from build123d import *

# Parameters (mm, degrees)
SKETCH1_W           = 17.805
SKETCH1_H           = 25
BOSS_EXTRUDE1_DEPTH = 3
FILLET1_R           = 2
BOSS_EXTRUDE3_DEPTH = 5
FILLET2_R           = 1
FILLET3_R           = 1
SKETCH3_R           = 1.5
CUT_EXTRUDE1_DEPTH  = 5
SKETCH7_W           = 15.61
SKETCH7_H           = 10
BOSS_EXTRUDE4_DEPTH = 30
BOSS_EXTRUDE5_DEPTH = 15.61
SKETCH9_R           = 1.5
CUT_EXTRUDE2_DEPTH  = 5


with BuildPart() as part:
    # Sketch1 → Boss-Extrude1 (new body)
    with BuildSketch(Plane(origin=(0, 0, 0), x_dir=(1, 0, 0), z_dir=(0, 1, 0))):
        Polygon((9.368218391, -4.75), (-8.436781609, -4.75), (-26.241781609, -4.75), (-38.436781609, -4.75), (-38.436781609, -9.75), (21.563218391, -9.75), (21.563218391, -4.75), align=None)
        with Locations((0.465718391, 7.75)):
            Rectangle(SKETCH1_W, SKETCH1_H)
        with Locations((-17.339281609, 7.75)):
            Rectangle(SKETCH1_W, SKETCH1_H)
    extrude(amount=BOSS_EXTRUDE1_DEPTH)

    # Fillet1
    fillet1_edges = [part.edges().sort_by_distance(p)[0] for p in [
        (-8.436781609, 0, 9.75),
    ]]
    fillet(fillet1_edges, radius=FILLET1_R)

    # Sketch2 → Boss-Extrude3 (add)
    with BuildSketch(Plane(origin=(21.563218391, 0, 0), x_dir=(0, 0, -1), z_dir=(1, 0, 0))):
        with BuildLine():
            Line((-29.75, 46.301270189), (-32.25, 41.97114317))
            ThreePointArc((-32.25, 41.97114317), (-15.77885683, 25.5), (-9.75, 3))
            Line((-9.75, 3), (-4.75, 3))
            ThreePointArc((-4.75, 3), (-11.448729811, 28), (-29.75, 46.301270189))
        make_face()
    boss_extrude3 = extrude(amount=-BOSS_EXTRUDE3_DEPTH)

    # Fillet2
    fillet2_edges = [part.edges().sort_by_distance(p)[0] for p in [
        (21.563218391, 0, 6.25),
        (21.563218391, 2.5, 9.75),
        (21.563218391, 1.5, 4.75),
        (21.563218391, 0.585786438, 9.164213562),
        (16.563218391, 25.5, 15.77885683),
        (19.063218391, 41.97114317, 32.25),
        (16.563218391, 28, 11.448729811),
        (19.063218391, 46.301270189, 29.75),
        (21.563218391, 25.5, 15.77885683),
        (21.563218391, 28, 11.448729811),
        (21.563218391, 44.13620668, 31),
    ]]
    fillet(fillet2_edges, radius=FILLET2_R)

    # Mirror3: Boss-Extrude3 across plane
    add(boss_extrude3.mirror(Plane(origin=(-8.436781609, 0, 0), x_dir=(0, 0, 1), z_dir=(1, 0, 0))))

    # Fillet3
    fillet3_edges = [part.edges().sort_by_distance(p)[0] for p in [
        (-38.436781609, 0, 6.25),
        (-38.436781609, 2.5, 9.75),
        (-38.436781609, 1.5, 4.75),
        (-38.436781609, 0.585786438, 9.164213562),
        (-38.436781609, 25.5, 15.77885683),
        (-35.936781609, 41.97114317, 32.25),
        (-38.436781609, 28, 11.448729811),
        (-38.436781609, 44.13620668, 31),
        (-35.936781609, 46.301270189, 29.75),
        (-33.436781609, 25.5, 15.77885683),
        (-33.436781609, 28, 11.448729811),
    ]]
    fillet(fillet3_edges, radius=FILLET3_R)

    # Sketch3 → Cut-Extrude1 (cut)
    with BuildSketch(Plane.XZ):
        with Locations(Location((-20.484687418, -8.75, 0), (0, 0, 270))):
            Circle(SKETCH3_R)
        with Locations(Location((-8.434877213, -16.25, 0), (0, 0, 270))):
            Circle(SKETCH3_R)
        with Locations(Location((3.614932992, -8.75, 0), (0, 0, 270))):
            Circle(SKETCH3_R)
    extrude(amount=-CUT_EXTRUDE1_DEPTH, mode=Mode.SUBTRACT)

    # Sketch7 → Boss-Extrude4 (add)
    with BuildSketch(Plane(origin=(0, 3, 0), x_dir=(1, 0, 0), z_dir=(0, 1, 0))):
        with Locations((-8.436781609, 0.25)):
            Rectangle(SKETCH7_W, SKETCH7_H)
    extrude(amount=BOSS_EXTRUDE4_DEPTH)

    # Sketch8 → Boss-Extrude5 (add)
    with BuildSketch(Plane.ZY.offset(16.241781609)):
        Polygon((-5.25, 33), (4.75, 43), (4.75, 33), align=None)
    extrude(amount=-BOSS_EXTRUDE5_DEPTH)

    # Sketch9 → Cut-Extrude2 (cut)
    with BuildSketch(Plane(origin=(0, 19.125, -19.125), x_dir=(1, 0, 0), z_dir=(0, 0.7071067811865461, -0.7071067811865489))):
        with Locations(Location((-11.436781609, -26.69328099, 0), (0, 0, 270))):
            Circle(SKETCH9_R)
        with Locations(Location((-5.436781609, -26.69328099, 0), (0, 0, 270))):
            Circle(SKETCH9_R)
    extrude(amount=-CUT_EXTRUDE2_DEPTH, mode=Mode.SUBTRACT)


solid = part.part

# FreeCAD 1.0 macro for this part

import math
import FreeCAD as App
import Part
import Sketcher
from FreeCAD import Vector
Q = App.Units.Quantity


def edges_at(feature, points):
    """Names of the edges that pass closest to the given points."""
    edges = feature.Shape.Edges
    near = lambda p: min(range(len(edges)), key=lambda i: edges[i].distToShape(Part.Vertex(*p))[0])
    return sorted({f"Edge{near(p) + 1}" for p in points})

doc = App.newDocument("Part")
params = doc.addObject("Spreadsheet::Sheet", "Params")
for row, (alias, value) in enumerate([
    ("sketch1_width", "60 mm"),
    ("sketch1_height", "5 mm"),
    ("sketch1_height2", "25 mm"),
    ("sketch1_width2", "35.61 mm"),
    ("pad1_length", "3 mm"),
    ("fillet_radius", "2 mm"),
    ("sketch2_radius", "45 mm"),
    ("sketch2_radius2", "50 mm"),
    ("pad2_length", "5 mm"),
    ("fillet2_radius", "1 mm"),
    ("fillet3_radius", "1 mm"),
    ("sketch3_diameter", "3 mm"),
    ("pocket1_length", "5 mm"),
    ("sketch4_height", "10 mm"),
    ("sketch4_width", "15.61 mm"),
    ("pad3_length", "30 mm"),
    ("sketch5_width", "10 mm"),
    ("pad4_length", "15.61 mm"),
    ("sketch6_diameter", "3 mm"),
    ("pocket2_length", "5 mm"),
], start=1):
    params.set(f"A{row}", alias)
    params.set(f"B{row}", "=" + value)
    params.setAlias(f"B{row}", alias)

body = doc.addObject("PartDesign::Body", "Body")

# Sketch on XZ plane
sketch1 = doc.addObject("Sketcher::SketchObject", "Sketch")
body.addObject(sketch1)
sketch1.AttachmentSupport = (doc.XZ_Plane, [""])
sketch1.MapMode = "FlatFace"
sketch1.addGeometry(Part.LineSegment(Vector(-38, 5, 0), Vector(-38, 10, 0)), False)
sketch1.addGeometry(Part.LineSegment(Vector(-38, 10, 0), Vector(22, 10, 0)), False)
sketch1.addGeometry(Part.LineSegment(Vector(22, 10, 0), Vector(22, 5, 0)), False)
sketch1.addGeometry(Part.LineSegment(Vector(22, 5, 0), Vector(9, 5, 0)), False)
sketch1.addGeometry(Part.LineSegment(Vector(9, 5, 0), Vector(9, -20, 0)), False)
sketch1.addGeometry(Part.LineSegment(Vector(9, -20, 0), Vector(-26, -20, 0)), False)
sketch1.addGeometry(Part.LineSegment(Vector(-26, -20, 0), Vector(-26, 5, 0)), False)
sketch1.addGeometry(Part.LineSegment(Vector(-26, 5, 0), Vector(-38, 5, 0)), False)
sketch1.addConstraint(Sketcher.Constraint("Coincident", 0, 2, 1, 1))
sketch1.addConstraint(Sketcher.Constraint("Coincident", 1, 2, 2, 1))
sketch1.addConstraint(Sketcher.Constraint("Coincident", 2, 2, 3, 1))
sketch1.addConstraint(Sketcher.Constraint("Coincident", 3, 2, 4, 1))
sketch1.addConstraint(Sketcher.Constraint("Coincident", 4, 2, 5, 1))
sketch1.addConstraint(Sketcher.Constraint("Coincident", 5, 2, 6, 1))
sketch1.addConstraint(Sketcher.Constraint("Coincident", 6, 2, 7, 1))
sketch1.addConstraint(Sketcher.Constraint("Coincident", 7, 2, 0, 1))
sketch1.addConstraint(Sketcher.Constraint("Vertical", 0))
sketch1.addConstraint(Sketcher.Constraint("Horizontal", 1))
sketch1.addConstraint(Sketcher.Constraint("Vertical", 2))
sketch1.addConstraint(Sketcher.Constraint("Horizontal", 3))
sketch1.addConstraint(Sketcher.Constraint("Vertical", 4))
sketch1.addConstraint(Sketcher.Constraint("Horizontal", 5))
sketch1.addConstraint(Sketcher.Constraint("Vertical", 6))
sketch1.addConstraint(Sketcher.Constraint("Horizontal", 7))
sketch1.addConstraint(Sketcher.Constraint("Horizontal", 3, 2, 6, 2))
sketch1.addConstraint(Sketcher.Constraint("Equal", 3, 7))
sketch1.addConstraint(Sketcher.Constraint("DistanceX", 1, 1, 1, 2, Q("60 mm")))
sketch1.addConstraint(Sketcher.Constraint("DistanceY", 0, 1, 0, 2, Q("5 mm")))
sketch1.addConstraint(Sketcher.Constraint("DistanceY", 4, 2, 4, 1, Q("25 mm")))
sketch1.addConstraint(Sketcher.Constraint("DistanceX", 5, 2, 5, 1, Q("35.61 mm")))
sketch1.addConstraint(Sketcher.Constraint("DistanceY", -1, 1, 0, 2, Q("9.75 mm")))
sketch1.addConstraint(Sketcher.Constraint("DistanceX", 0, 2, -1, 1, Q("38.436782 mm")))
sketch1.setExpression("Constraints[18]", "Params.sketch1_width")
sketch1.setExpression("Constraints[19]", "Params.sketch1_height")
sketch1.setExpression("Constraints[20]", "Params.sketch1_height2")
sketch1.setExpression("Constraints[21]", "Params.sketch1_width2")
pad1 = doc.addObject("PartDesign::Pad", "Pad")
body.addObject(pad1)
pad1.Profile = sketch1
pad1.setExpression("Length", "Params.pad1_length")
pad1.Reversed = True
doc.recompute()

fillet = doc.addObject("PartDesign::Fillet", "Fillet")
body.addObject(fillet)
fillet.Base = (pad1, edges_at(pad1, [(-8.437, 0, 9.75)]))
fillet.setExpression("Radius", "Params.fillet_radius")

# Sketch on YZ plane
sketch2 = doc.addObject("Sketcher::SketchObject", "Sketch001")
body.addObject(sketch2)
sketch2.AttachmentSupport = (doc.YZ_Plane, [""])
sketch2.MapMode = "FlatFace"
sketch2.AttachmentOffset = App.Placement(Vector(0, 0, 21.563218), App.Rotation())
sketch2.addGeometry(Part.LineSegment(Vector(46, 30, 0), Vector(42, 32, 0)), False)
sketch2.addGeometry(Part.ArcOfCircle(Part.Circle(Vector(3, 55, 0), Vector(0, 0, 1), 45), math.radians(-90), math.radians(-30)), False)
sketch2.addGeometry(Part.LineSegment(Vector(3, 10, 0), Vector(3, 5, 0)), False)
sketch2.addGeometry(Part.ArcOfCircle(Part.Circle(Vector(3, 55, 0), Vector(0, 0, 1), 50), math.radians(-90), math.radians(-30)), False)
sketch2.addConstraint(Sketcher.Constraint("Coincident", 0, 2, 1, 2))
sketch2.addConstraint(Sketcher.Constraint("Coincident", 1, 1, 2, 1))
sketch2.addConstraint(Sketcher.Constraint("Coincident", 2, 2, 3, 1))
sketch2.addConstraint(Sketcher.Constraint("Coincident", 3, 2, 0, 1))
sketch2.addConstraint(Sketcher.Constraint("Vertical", 2))
sketch2.addConstraint(Sketcher.Constraint("Coincident", 3, 3, 1, 3))
sketch2.addConstraint(Sketcher.Constraint("Vertical", 3, 3, 1, 1))
sketch2.addConstraint(Sketcher.Constraint("Radius", 1, Q("45 mm")))
sketch2.addConstraint(Sketcher.Constraint("Radius", 3, Q("50 mm")))
sketch2.addConstraint(Sketcher.Constraint("Angle", 0, Q("150 deg")))
sketch2.addConstraint(Sketcher.Constraint("DistanceX", -1, 1, 1, 3, Q("3 mm")))
sketch2.addConstraint(Sketcher.Constraint("DistanceY", 1, 1, 3, 2, Q("20 mm")))
sketch2.addConstraint(Sketcher.Constraint("DistanceY", -1, 1, 1, 3, Q("54.75 mm")))
sketch2.setExpression("Constraints[7]", "Params.sketch2_radius")
sketch2.setExpression("Constraints[8]", "Params.sketch2_radius2")
pad2 = doc.addObject("PartDesign::Pad", "Pad001")
body.addObject(pad2)
pad2.Profile = sketch2
pad2.setExpression("Length", "Params.pad2_length")
pad2.Reversed = True
doc.recompute()

fillet2 = doc.addObject("PartDesign::Fillet", "Fillet001")
body.addObject(fillet2)
fillet2.Base = (pad2, edges_at(pad2, [
    (21.563, 0, 6.25),
    (21.563, 2.5, 9.75),
    (21.563, 1.5, 4.75),
    (21.563, 0.586, 9.164),
    (16.563, 25.5, 15.779),
    (19.063, 41.971, 32.25),
    (16.563, 28, 11.449),
    (19.063, 46.301, 29.75),
    (21.563, 25.5, 15.779),
    (21.563, 28, 11.449),
    (21.563, 44.136, 31),
]))
fillet2.setExpression("Radius", "Params.fillet2_radius")
doc.recompute()

datumplane = doc.addObject("PartDesign::Plane", "DatumPlane")
body.addObject(datumplane)
datumplane.AttachmentSupport = (doc.YZ_Plane, [""])
datumplane.MapMode = "FlatFace"
datumplane.AttachmentOffset = App.Placement(Vector(0, 0, -8.436782), App.Rotation())
mirrored = doc.addObject("PartDesign::Mirrored", "Mirrored")
body.addObject(mirrored)
mirrored.Originals = [pad2]
mirrored.MirrorPlane = (datumplane, [""])
body.Tip = mirrored
doc.recompute()

fillet3 = doc.addObject("PartDesign::Fillet", "Fillet002")
body.addObject(fillet3)
fillet3.Base = (mirrored, edges_at(mirrored, [
    (-38.437, 0, 6.25),
    (-38.437, 2.5, 9.75),
    (-38.437, 1.5, 4.75),
    (-38.437, 0.586, 9.164),
    (-38.437, 25.5, 15.779),
    (-35.937, 41.971, 32.25),
    (-38.437, 28, 11.449),
    (-38.437, 44.136, 31),
    (-35.937, 46.301, 29.75),
    (-33.437, 25.5, 15.779),
    (-33.437, 28, 11.449),
]))
fillet3.setExpression("Radius", "Params.fillet3_radius")

# Sketch on XZ plane
sketch3 = doc.addObject("Sketcher::SketchObject", "Sketch002")
body.addObject(sketch3)
sketch3.AttachmentSupport = (doc.XZ_Plane, [""])
sketch3.MapMode = "FlatFace"
sketch3.addGeometry(Part.Circle(Vector(-20.5, -8.8, 0), Vector(0, 0, 1), 1.5), False)
sketch3.addGeometry(Part.Circle(Vector(-8.4, -16.2, 0), Vector(0, 0, 1), 1.5), False)
sketch3.addGeometry(Part.Circle(Vector(3.6, -8.8, 0), Vector(0, 0, 1), 1.5), False)
sketch3.addConstraint(Sketcher.Constraint("Equal", 0, 1))
sketch3.addConstraint(Sketcher.Constraint("Equal", 1, 2))
sketch3.addConstraint(Sketcher.Constraint("Horizontal", 0, 3, 2, 3))
sketch3.addConstraint(Sketcher.Constraint("Diameter", 0, Q("3 mm")))
sketch3.addConstraint(Sketcher.Constraint("DistanceY", 1, 3, 0, 3, Q("7.5 mm")))
sketch3.addConstraint(Sketcher.Constraint("DistanceY", 0, 3, -1, 1, Q("8.75 mm")))
sketch3.addConstraint(Sketcher.Constraint("DistanceX", 0, 3, 1, 3, Q("12.04981 mm")))
sketch3.addConstraint(Sketcher.Constraint("DistanceX", 1, 3, 2, 3, Q("12.04981 mm")))
sketch3.addConstraint(Sketcher.Constraint("DistanceX", 0, 3, -1, 1, Q("20.484687 mm")))
sketch3.setExpression("Constraints[3]", "Params.sketch3_diameter")
pocket1 = doc.addObject("PartDesign::Pocket", "Pocket")
body.addObject(pocket1)
pocket1.Profile = sketch3
pocket1.setExpression("Length", "Params.pocket1_length")

# Sketch on XZ plane
sketch4 = doc.addObject("Sketcher::SketchObject", "Sketch003")
body.addObject(sketch4)
sketch4.AttachmentSupport = (doc.XZ_Plane, [""])
sketch4.MapMode = "FlatFace"
sketch4.AttachmentOffset = App.Placement(Vector(0, 0, -3), App.Rotation())
sketch4.addGeometry(Part.LineSegment(Vector(-16, -5, 0), Vector(-16, 5, 0)), False)
sketch4.addGeometry(Part.LineSegment(Vector(-16, 5, 0), Vector(-1, 5, 0)), False)
sketch4.addGeometry(Part.LineSegment(Vector(-1, 5, 0), Vector(-1, -5, 0)), False)
sketch4.addGeometry(Part.LineSegment(Vector(-1, -5, 0), Vector(-16, -5, 0)), False)
sketch4.addConstraint(Sketcher.Constraint("Coincident", 0, 2, 1, 1))
sketch4.addConstraint(Sketcher.Constraint("Coincident", 1, 2, 2, 1))
sketch4.addConstraint(Sketcher.Constraint("Coincident", 2, 2, 3, 1))
sketch4.addConstraint(Sketcher.Constraint("Coincident", 3, 2, 0, 1))
sketch4.addConstraint(Sketcher.Constraint("Vertical", 0))
sketch4.addConstraint(Sketcher.Constraint("Horizontal", 1))
sketch4.addConstraint(Sketcher.Constraint("Vertical", 2))
sketch4.addConstraint(Sketcher.Constraint("Horizontal", 3))
sketch4.addConstraint(Sketcher.Constraint("DistanceY", 0, 1, 0, 2, Q("10 mm")))
sketch4.addConstraint(Sketcher.Constraint("DistanceX", 1, 1, 1, 2, Q("15.61 mm")))
sketch4.addConstraint(Sketcher.Constraint("DistanceY", -1, 1, 0, 2, Q("4.75 mm")))
sketch4.addConstraint(Sketcher.Constraint("DistanceX", 0, 2, -1, 1, Q("16.241782 mm")))
sketch4.setExpression("Constraints[8]", "Params.sketch4_height")
sketch4.setExpression("Constraints[9]", "Params.sketch4_width")
pad3 = doc.addObject("PartDesign::Pad", "Pad002")
body.addObject(pad3)
pad3.Profile = sketch4
pad3.setExpression("Length", "Params.pad3_length")
pad3.Reversed = True

# Sketch on YZ plane
sketch5 = doc.addObject("Sketcher::SketchObject", "Sketch004")
body.addObject(sketch5)
sketch5.AttachmentSupport = (doc.YZ_Plane, [""])
sketch5.MapMode = "FlatFace"
sketch5.AttachmentOffset = App.Placement(Vector(0, 0, -16.241782), App.Rotation())
sketch5.addGeometry(Part.LineSegment(Vector(43, 5, 0), Vector(33, -5, 0)), False)
sketch5.addGeometry(Part.LineSegment(Vector(33, -5, 0), Vector(33, 5, 0)), False)
sketch5.addGeometry(Part.LineSegment(Vector(33, 5, 0), Vector(43, 5, 0)), False)
sketch5.addConstraint(Sketcher.Constraint("Coincident", 0, 2, 1, 1))
sketch5.addConstraint(Sketcher.Constraint("Coincident", 1, 2, 2, 1))
sketch5.addConstraint(Sketcher.Constraint("Coincident", 2, 2, 0, 1))
sketch5.addConstraint(Sketcher.Constraint("Vertical", 1))
sketch5.addConstraint(Sketcher.Constraint("Horizontal", 2))
sketch5.addConstraint(Sketcher.Constraint("Equal", 2, 1))
sketch5.addConstraint(Sketcher.Constraint("DistanceX", 2, 1, 2, 2, Q("10 mm")))
sketch5.addConstraint(Sketcher.Constraint("DistanceX", -1, 1, 0, 2, Q("33 mm")))
sketch5.addConstraint(Sketcher.Constraint("DistanceY", 0, 2, -1, 1, Q("5.25 mm")))
sketch5.setExpression("Constraints[6]", "Params.sketch5_width")
pad4 = doc.addObject("PartDesign::Pad", "Pad003")
body.addObject(pad4)
pad4.Profile = sketch5
pad4.setExpression("Length", "Params.pad4_length")

# Sketch on an angled plane
sketch6 = doc.addObject("Sketcher::SketchObject", "Sketch005")
body.addObject(sketch6)
sketch6.Placement = App.Placement(Vector(0, 19.125, -19.125), App.Rotation(Vector(1, 0, 0), Vector(0, -0.707106781, -0.707106781), Vector(0, 0.707106781, -0.707106781), "ZXY"))
sketch6.addGeometry(Part.Circle(Vector(-11.4, -26.7, 0), Vector(0, 0, 1), 1.5), False)
sketch6.addGeometry(Part.Circle(Vector(-5.4, -26.7, 0), Vector(0, 0, 1), 1.5), False)
sketch6.addConstraint(Sketcher.Constraint("Equal", 0, 1))
sketch6.addConstraint(Sketcher.Constraint("Horizontal", 0, 3, 1, 3))
sketch6.addConstraint(Sketcher.Constraint("Diameter", 0, Q("3 mm")))
sketch6.addConstraint(Sketcher.Constraint("DistanceX", 0, 3, 1, 3, Q("6 mm")))
sketch6.addConstraint(Sketcher.Constraint("DistanceX", 0, 3, -1, 1, Q("11.436782 mm")))
sketch6.addConstraint(Sketcher.Constraint("DistanceY", 0, 3, -1, 1, Q("26.693281 mm")))
sketch6.setExpression("Constraints[2]", "Params.sketch6_diameter")
pocket2 = doc.addObject("PartDesign::Pocket", "Pocket001")
body.addObject(pocket2)
pocket2.Profile = sketch6
pocket2.setExpression("Length", "Params.pocket2_length")

doc.recompute()
